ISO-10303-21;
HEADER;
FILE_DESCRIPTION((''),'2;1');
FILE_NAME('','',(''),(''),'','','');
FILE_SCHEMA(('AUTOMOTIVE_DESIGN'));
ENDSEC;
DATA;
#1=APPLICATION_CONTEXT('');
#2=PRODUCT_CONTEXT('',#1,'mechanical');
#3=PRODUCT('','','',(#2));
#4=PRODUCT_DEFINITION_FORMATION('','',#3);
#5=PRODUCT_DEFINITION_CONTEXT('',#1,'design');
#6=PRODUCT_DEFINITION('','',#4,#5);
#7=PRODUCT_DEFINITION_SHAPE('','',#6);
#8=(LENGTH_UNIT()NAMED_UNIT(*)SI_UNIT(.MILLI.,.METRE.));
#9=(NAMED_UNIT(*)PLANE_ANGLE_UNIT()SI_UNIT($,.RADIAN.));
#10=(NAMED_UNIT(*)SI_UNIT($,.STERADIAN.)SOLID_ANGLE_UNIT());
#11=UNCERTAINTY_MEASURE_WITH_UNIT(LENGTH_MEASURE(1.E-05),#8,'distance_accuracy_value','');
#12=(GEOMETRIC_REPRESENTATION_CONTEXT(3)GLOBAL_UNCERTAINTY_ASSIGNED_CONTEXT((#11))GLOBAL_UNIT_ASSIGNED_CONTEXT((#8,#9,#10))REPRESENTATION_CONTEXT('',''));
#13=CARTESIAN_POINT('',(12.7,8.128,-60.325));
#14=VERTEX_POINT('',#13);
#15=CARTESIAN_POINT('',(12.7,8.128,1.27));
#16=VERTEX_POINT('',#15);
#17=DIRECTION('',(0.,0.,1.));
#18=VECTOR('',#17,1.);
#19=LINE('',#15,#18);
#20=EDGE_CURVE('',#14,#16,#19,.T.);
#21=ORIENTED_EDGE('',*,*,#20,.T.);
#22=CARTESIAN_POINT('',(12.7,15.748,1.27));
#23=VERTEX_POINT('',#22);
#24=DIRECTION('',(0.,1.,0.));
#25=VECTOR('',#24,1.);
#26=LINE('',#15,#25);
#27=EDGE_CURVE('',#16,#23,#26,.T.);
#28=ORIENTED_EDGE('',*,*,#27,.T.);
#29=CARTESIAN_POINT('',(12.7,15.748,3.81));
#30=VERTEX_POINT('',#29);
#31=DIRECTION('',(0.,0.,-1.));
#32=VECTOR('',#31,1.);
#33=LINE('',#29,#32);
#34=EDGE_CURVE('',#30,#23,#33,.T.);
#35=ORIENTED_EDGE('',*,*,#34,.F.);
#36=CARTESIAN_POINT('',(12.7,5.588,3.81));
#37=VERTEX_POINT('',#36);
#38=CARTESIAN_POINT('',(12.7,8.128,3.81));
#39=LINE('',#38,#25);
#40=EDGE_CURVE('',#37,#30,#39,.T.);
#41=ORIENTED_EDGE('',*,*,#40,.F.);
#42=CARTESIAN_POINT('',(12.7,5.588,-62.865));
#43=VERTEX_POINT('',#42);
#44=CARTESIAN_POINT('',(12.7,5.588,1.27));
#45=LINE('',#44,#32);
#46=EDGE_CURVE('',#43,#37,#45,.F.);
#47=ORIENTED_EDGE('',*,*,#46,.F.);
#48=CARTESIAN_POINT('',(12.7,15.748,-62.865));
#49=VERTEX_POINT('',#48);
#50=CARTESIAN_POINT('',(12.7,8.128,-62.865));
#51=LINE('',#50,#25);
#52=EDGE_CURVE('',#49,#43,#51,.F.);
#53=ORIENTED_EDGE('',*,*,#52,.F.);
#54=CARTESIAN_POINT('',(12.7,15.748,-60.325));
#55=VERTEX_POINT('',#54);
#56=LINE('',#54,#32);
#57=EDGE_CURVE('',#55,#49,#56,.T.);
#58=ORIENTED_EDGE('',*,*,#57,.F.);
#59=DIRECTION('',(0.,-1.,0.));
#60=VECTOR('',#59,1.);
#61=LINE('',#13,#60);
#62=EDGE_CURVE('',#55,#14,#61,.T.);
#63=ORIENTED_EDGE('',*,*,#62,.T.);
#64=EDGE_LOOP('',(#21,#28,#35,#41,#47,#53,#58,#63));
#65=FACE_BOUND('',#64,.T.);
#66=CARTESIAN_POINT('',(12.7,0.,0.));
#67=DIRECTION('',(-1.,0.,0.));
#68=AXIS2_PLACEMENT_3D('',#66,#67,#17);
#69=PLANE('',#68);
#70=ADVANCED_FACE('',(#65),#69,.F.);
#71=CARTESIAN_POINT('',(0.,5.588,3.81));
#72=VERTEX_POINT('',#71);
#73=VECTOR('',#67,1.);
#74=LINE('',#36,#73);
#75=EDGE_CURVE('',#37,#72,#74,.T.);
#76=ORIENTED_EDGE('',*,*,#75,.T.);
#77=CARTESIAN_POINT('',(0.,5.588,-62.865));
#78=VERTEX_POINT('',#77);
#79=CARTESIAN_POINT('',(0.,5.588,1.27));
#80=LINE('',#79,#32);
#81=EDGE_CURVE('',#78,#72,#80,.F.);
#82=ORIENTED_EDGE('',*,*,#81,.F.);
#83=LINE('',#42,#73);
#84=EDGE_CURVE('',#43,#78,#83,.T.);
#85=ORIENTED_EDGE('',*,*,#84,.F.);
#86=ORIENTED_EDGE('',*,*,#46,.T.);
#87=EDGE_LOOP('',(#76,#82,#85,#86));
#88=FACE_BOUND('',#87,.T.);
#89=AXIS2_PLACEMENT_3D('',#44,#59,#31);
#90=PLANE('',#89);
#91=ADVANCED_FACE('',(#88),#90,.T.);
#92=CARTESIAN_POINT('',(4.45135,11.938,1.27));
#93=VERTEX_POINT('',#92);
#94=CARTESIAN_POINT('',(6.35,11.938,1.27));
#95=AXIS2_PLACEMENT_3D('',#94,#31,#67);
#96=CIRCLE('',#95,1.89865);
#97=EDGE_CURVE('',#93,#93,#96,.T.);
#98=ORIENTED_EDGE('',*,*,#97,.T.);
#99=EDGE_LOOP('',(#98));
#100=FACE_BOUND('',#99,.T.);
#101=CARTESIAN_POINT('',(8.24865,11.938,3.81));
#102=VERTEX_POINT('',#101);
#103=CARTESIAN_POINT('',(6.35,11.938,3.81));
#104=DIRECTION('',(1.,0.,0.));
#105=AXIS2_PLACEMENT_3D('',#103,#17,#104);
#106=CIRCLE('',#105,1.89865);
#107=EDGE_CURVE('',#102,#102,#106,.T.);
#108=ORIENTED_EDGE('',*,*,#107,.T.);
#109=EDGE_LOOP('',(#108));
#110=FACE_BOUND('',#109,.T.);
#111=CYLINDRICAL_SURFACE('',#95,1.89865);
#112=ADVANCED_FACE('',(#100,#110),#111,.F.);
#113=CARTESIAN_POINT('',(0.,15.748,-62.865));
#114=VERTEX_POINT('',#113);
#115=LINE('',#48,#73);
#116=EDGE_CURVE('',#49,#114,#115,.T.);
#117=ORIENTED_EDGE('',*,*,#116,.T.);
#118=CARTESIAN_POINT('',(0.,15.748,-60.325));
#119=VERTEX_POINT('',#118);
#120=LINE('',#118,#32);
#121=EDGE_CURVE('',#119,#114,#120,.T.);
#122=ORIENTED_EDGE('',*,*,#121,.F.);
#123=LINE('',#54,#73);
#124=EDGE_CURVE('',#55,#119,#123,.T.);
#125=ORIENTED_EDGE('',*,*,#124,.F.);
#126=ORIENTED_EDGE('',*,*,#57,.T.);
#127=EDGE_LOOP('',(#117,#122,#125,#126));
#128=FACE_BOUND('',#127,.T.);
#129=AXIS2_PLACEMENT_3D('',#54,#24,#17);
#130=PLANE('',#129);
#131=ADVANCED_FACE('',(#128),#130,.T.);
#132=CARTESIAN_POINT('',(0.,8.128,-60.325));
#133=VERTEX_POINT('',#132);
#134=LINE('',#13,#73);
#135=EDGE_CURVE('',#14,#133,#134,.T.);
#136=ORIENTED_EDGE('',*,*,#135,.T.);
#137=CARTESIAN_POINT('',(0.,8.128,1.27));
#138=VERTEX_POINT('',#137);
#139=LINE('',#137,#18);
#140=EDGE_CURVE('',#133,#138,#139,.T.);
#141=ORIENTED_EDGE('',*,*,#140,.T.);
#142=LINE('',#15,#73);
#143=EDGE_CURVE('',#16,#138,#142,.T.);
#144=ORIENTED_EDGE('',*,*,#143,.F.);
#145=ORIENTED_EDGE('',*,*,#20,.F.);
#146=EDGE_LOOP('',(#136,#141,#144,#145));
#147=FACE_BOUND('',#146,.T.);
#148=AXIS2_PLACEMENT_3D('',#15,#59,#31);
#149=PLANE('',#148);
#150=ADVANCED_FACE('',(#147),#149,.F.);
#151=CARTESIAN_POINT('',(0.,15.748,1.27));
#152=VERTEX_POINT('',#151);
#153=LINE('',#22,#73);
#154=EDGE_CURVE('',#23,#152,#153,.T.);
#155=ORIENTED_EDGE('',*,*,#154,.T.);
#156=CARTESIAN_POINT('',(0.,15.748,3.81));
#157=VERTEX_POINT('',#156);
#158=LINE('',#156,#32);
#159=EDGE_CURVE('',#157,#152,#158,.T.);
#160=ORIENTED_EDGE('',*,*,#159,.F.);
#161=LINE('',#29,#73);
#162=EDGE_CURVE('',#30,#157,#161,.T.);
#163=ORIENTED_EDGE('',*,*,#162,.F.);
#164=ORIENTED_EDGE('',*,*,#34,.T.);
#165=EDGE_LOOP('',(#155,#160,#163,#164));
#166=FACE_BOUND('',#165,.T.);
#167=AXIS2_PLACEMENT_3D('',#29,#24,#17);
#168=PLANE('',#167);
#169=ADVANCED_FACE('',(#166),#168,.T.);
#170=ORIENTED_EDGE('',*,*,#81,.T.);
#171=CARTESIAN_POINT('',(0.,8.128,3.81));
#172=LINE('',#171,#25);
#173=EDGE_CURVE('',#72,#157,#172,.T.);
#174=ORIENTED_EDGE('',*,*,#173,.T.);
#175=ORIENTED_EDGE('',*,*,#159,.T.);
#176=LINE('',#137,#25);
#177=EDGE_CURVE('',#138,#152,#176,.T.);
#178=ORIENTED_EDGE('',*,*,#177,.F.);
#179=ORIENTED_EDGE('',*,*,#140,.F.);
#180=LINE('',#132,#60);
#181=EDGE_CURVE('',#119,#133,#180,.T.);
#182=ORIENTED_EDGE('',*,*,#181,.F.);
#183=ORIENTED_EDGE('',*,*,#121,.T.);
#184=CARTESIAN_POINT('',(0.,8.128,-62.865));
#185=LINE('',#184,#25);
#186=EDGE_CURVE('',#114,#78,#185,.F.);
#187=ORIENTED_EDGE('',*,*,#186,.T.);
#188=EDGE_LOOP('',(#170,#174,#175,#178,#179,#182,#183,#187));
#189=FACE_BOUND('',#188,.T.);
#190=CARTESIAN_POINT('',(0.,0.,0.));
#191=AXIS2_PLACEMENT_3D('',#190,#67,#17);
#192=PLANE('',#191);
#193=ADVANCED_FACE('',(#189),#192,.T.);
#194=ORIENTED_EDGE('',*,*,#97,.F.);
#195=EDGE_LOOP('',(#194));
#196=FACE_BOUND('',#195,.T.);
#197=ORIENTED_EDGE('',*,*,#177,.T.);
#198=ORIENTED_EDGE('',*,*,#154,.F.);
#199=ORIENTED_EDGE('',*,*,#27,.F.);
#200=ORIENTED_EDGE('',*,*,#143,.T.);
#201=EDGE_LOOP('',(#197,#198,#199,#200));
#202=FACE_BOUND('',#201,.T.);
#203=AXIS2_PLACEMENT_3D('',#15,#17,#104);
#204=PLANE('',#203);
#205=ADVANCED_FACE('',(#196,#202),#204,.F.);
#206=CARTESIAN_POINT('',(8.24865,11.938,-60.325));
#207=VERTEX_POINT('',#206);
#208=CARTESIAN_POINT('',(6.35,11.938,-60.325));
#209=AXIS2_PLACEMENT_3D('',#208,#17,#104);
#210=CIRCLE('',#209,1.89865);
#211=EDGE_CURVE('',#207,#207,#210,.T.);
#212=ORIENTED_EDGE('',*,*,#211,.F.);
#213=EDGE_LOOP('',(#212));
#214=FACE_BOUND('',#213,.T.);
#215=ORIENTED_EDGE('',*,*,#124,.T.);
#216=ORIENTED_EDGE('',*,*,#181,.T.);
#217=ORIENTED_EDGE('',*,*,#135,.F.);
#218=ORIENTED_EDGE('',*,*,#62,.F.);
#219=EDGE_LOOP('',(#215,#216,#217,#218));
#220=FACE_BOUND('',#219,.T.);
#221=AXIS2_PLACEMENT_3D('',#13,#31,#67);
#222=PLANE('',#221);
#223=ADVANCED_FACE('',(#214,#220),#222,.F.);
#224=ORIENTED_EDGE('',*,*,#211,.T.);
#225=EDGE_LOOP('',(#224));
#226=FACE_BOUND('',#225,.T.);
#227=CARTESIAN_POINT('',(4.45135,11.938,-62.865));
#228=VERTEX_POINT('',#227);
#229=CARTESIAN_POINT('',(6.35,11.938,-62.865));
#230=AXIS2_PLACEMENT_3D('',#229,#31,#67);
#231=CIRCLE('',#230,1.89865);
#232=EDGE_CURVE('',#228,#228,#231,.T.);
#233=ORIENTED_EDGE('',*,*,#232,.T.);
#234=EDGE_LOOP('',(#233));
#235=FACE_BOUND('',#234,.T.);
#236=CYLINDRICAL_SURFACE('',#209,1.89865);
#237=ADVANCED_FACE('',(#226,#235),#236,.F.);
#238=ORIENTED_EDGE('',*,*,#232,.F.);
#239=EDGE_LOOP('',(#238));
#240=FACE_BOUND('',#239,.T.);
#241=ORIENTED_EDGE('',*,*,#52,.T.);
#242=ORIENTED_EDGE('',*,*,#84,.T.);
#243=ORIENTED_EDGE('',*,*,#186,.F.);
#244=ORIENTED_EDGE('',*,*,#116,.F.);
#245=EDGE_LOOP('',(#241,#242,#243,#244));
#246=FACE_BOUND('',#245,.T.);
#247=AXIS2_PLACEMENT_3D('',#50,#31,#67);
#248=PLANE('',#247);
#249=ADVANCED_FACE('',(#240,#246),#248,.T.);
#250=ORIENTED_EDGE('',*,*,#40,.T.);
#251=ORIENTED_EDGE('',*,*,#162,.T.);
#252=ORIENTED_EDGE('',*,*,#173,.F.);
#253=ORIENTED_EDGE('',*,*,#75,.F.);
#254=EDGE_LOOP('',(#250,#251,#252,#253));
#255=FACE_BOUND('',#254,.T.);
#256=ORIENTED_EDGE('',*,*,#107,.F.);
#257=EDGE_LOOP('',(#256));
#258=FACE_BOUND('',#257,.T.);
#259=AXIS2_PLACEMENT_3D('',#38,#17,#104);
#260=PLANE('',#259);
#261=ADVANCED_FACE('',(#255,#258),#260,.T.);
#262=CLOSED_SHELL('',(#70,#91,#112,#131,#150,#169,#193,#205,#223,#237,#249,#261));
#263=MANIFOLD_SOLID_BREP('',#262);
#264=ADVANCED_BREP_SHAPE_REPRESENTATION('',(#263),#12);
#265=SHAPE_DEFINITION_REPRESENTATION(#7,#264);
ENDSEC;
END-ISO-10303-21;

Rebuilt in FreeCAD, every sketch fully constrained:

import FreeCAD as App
import Part
import Sketcher
from FreeCAD import Vector
Q = App.Units.Quantity

doc = App.newDocument("Part")
params = doc.addObject("Spreadsheet::Sheet", "Params")
for row, (alias, value) in enumerate([
    ("sketch1_width", "0.3 in"),
    ("sketch1_width2", "0.4 in"),
    ("sketch1_height", "0.1 in"),
    ("sketch1_height2", "2.625 in"),
    ("pad1_length", "0.5 in"),
    ("hole_diameter", "0.1495 in"),
    ("hole_depth", "0.3 in"),
    ("hole2_diameter", "0.1495 in"),
    ("hole2_depth", "0.3 in"),
], start=1):
    params.set(f"A{row}", alias)
    params.set(f"B{row}", "=" + value)
    params.setAlias(f"B{row}", alias)

body = doc.addObject("PartDesign::Body", "Body")

# Sketch on YZ plane
sketch1 = body.newObject("Sketcher::SketchObject", "Sketch")
sketch1.AttachmentSupport = (doc.getObject("YZ_Plane"), [""])
sketch1.MapMode = "FlatFace"
sketch1.addGeometry([
    Part.LineSegment(Vector(8.1, 1.3, 0), Vector(15.7, 1.3, 0)),  # 0
    Part.LineSegment(Vector(15.7, 1.3, 0), Vector(15.7, 3.8, 0)),  # 1
    Part.LineSegment(Vector(15.7, 3.8, 0), Vector(5.6, 3.8, 0)),  # 2
    Part.LineSegment(Vector(5.6, 3.8, 0), Vector(5.6, -62.9, 0)),  # 3
    Part.LineSegment(Vector(5.6, -62.9, 0), Vector(15.7, -62.9, 0)),  # 4
    Part.LineSegment(Vector(15.7, -62.9, 0), Vector(15.7, -60.3, 0)),  # 5
    Part.LineSegment(Vector(15.7, -60.3, 0), Vector(8.1, -60.3, 0)),  # 6
    Part.LineSegment(Vector(8.1, -60.3, 0), Vector(8.1, 1.3, 0)),  # 7
], False)
sketch1.addConstraint([
    Sketcher.Constraint("Coincident", 0, 2, 1, 1),
    Sketcher.Constraint("Coincident", 1, 2, 2, 1),
    Sketcher.Constraint("Coincident", 2, 2, 3, 1),
    Sketcher.Constraint("Coincident", 3, 2, 4, 1),
    Sketcher.Constraint("Coincident", 4, 2, 5, 1),
    Sketcher.Constraint("Coincident", 5, 2, 6, 1),
    Sketcher.Constraint("Coincident", 6, 2, 7, 1),
    Sketcher.Constraint("Coincident", 7, 2, 0, 1),
    Sketcher.Constraint("Horizontal", 0),
    Sketcher.Constraint("Vertical", 1),
    Sketcher.Constraint("Horizontal", 2),
    Sketcher.Constraint("Vertical", 3),
    Sketcher.Constraint("Horizontal", 4),
    Sketcher.Constraint("Vertical", 5),
    Sketcher.Constraint("Horizontal", 6),
    Sketcher.Constraint("Vertical", 7),
    Sketcher.Constraint("Vertical", 1, 2, 4, 2),
    Sketcher.Constraint("Equal", 1, 5),
    Sketcher.Constraint("DistanceX", 0, 1, 0, 2, Q("0.3 in")),
    Sketcher.Constraint("DistanceX", 2, 2, 2, 1, Q("0.4 in")),
    Sketcher.Constraint("DistanceY", 1, 1, 1, 2, Q("0.1 in")),
    Sketcher.Constraint("DistanceY", 3, 2, 3, 1, Q("2.625 in")),
    Sketcher.Constraint("DistanceX", -1, 1, 0, 2, Q("0.62 in")),
    Sketcher.Constraint("DistanceY", -1, 1, 0, 2, Q("0.05 in")),
])
sketch1.setExpression("Constraints[18]", "Params.sketch1_width")
sketch1.setExpression("Constraints[19]", "Params.sketch1_width2")
sketch1.setExpression("Constraints[20]", "Params.sketch1_height")
sketch1.setExpression("Constraints[21]", "Params.sketch1_height2")
pad1 = body.newObject("PartDesign::Pad", "Pad")
pad1.Profile = sketch1
pad1.setExpression("Length", "Params.pad1_length")

# Sketch on XY plane
sketch2 = body.newObject("Sketcher::SketchObject", "Sketch001")
sketch2.AttachmentSupport = (doc.getObject("XY_Plane"), [""])
sketch2.MapMode = "FlatFace"
sketch2.AttachmentOffset = App.Placement(Vector(0, 0, 0.05 * 25.4), App.Rotation())
sketch2.addGeometry(Part.Circle(Vector(6.3, 11.9, 0), Vector(0, 0, 1), 1.9), False)
sketch2.addConstraint([
    Sketcher.Constraint("Diameter", 0, Q("0.1495 in")),
    Sketcher.Constraint("DistanceX", -1, 1, 0, 3, Q("0.25 in")),
    Sketcher.Constraint("DistanceY", -1, 1, 0, 3, Q("0.47 in")),
])
doc.recompute()
hole = body.newObject("PartDesign::Hole", "Hole")
hole.Profile = sketch2
hole.ThreadType = "None"
hole.setExpression("Diameter", "Params.hole_diameter")
hole.DepthType = "Dimension"
hole.setExpression("Depth", "Params.hole_depth")
hole.DrillPoint = "Angled"
hole.DrillPointAngle = 118
hole.Reversed = True

# Sketch on XY plane
sketch3 = body.newObject("Sketcher::SketchObject", "Sketch002")
sketch3.AttachmentSupport = (doc.getObject("XY_Plane"), [""])
sketch3.MapMode = "FlatFace"
sketch3.AttachmentOffset = App.Placement(Vector(0, 0, -2.375 * 25.4), App.Rotation())
sketch3.addGeometry(Part.Circle(Vector(6.3, 11.9, 0), Vector(0, 0, 1), 1.9), False)
sketch3.addConstraint([
    Sketcher.Constraint("Diameter", 0, Q("0.1495 in")),
    Sketcher.Constraint("DistanceX", -1, 1, 0, 3, Q("0.25 in")),
    Sketcher.Constraint("DistanceY", -1, 1, 0, 3, Q("0.47 in")),
])
doc.recompute()
hole2 = body.newObject("PartDesign::Hole", "Hole001")
hole2.Profile = sketch3
hole2.ThreadType = "None"
hole2.setExpression("Diameter", "Params.hole2_diameter")
hole2.DepthType = "Dimension"
hole2.setExpression("Depth", "Params.hole2_depth")
hole2.DrillPoint = "Angled"
hole2.DrillPointAngle = 118

doc.recompute()
